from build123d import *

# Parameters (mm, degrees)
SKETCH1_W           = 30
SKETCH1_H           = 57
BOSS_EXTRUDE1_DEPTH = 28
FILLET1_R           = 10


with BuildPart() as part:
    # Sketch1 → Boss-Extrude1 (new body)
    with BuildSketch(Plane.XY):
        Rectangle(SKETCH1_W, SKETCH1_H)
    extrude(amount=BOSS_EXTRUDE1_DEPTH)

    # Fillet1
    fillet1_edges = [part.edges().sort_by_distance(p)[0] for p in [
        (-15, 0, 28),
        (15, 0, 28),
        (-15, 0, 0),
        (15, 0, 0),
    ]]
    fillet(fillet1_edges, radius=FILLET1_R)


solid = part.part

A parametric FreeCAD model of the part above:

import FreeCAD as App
import Part
import Sketcher

V = App.Vector


def edges_at(feature, points):
    """Names of the edges that pass closest to the given points."""
    edges = feature.Shape.Edges
    near = lambda p: min(range(len(edges)), key=lambda i: edges[i].distToShape(Part.Vertex(*p))[0])
    return sorted({f"Edge{near(p) + 1}" for p in points})


def add_polygon(sketch, points):
    """Adds a closed chain of lines whose ends are joined by coincident constraints."""
    first, n = sketch.GeometryCount, len(points)
    for a, b in zip(points, points[1:] + points[:1]):
        sketch.addGeometry(Part.LineSegment(App.Vector(*a, 0), App.Vector(*b, 0)), False)
    for i in range(n):
        sketch.addConstraint(Sketcher.Constraint("Coincident", first + i, 2, first + (i + 1) % n, 1))

doc = App.newDocument("Part")
body = doc.addObject("PartDesign::Body", "Body")

# Sketch on XY plane
sketch1 = doc.addObject("Sketcher::SketchObject", "Sketch")
body.addObject(sketch1)
sketch1.AttachmentSupport = (doc.XY_Plane, [""])
sketch1.MapMode = "FlatFace"
add_polygon(sketch1, [(-15, 28), (-15, -28), (15, -28), (15, 28)])  # lines 0-3
sketch1.addConstraint([
    Sketcher.Constraint("Vertical", 0),
    Sketcher.Constraint("Horizontal", 1),
    Sketcher.Constraint("Vertical", 2),
    Sketcher.Constraint("Horizontal", 3),
    Sketcher.Constraint("Symmetric", 0, 2, 2, 2, -1, 1),
    Sketcher.Constraint("DistanceX", 1, 1, 1, 2, 30.0),
    Sketcher.Constraint("DistanceY", 0, 2, 0, 1, 57.0),
])
pad1 = doc.addObject("PartDesign::Pad", "Pad")
body.addObject(pad1)
pad1.Profile = sketch1
pad1.Length = 28
doc.recompute()

fillet = doc.addObject("PartDesign::Fillet", "Fillet")
body.addObject(fillet)
fillet.Base = (pad1, edges_at(pad1, [
    (-15, 0, 28),
    (15, 0, 28),
    (-15, 0, 0),
    (15, 0, 0),
]))
fillet.Radius = 10

doc.recompute()
